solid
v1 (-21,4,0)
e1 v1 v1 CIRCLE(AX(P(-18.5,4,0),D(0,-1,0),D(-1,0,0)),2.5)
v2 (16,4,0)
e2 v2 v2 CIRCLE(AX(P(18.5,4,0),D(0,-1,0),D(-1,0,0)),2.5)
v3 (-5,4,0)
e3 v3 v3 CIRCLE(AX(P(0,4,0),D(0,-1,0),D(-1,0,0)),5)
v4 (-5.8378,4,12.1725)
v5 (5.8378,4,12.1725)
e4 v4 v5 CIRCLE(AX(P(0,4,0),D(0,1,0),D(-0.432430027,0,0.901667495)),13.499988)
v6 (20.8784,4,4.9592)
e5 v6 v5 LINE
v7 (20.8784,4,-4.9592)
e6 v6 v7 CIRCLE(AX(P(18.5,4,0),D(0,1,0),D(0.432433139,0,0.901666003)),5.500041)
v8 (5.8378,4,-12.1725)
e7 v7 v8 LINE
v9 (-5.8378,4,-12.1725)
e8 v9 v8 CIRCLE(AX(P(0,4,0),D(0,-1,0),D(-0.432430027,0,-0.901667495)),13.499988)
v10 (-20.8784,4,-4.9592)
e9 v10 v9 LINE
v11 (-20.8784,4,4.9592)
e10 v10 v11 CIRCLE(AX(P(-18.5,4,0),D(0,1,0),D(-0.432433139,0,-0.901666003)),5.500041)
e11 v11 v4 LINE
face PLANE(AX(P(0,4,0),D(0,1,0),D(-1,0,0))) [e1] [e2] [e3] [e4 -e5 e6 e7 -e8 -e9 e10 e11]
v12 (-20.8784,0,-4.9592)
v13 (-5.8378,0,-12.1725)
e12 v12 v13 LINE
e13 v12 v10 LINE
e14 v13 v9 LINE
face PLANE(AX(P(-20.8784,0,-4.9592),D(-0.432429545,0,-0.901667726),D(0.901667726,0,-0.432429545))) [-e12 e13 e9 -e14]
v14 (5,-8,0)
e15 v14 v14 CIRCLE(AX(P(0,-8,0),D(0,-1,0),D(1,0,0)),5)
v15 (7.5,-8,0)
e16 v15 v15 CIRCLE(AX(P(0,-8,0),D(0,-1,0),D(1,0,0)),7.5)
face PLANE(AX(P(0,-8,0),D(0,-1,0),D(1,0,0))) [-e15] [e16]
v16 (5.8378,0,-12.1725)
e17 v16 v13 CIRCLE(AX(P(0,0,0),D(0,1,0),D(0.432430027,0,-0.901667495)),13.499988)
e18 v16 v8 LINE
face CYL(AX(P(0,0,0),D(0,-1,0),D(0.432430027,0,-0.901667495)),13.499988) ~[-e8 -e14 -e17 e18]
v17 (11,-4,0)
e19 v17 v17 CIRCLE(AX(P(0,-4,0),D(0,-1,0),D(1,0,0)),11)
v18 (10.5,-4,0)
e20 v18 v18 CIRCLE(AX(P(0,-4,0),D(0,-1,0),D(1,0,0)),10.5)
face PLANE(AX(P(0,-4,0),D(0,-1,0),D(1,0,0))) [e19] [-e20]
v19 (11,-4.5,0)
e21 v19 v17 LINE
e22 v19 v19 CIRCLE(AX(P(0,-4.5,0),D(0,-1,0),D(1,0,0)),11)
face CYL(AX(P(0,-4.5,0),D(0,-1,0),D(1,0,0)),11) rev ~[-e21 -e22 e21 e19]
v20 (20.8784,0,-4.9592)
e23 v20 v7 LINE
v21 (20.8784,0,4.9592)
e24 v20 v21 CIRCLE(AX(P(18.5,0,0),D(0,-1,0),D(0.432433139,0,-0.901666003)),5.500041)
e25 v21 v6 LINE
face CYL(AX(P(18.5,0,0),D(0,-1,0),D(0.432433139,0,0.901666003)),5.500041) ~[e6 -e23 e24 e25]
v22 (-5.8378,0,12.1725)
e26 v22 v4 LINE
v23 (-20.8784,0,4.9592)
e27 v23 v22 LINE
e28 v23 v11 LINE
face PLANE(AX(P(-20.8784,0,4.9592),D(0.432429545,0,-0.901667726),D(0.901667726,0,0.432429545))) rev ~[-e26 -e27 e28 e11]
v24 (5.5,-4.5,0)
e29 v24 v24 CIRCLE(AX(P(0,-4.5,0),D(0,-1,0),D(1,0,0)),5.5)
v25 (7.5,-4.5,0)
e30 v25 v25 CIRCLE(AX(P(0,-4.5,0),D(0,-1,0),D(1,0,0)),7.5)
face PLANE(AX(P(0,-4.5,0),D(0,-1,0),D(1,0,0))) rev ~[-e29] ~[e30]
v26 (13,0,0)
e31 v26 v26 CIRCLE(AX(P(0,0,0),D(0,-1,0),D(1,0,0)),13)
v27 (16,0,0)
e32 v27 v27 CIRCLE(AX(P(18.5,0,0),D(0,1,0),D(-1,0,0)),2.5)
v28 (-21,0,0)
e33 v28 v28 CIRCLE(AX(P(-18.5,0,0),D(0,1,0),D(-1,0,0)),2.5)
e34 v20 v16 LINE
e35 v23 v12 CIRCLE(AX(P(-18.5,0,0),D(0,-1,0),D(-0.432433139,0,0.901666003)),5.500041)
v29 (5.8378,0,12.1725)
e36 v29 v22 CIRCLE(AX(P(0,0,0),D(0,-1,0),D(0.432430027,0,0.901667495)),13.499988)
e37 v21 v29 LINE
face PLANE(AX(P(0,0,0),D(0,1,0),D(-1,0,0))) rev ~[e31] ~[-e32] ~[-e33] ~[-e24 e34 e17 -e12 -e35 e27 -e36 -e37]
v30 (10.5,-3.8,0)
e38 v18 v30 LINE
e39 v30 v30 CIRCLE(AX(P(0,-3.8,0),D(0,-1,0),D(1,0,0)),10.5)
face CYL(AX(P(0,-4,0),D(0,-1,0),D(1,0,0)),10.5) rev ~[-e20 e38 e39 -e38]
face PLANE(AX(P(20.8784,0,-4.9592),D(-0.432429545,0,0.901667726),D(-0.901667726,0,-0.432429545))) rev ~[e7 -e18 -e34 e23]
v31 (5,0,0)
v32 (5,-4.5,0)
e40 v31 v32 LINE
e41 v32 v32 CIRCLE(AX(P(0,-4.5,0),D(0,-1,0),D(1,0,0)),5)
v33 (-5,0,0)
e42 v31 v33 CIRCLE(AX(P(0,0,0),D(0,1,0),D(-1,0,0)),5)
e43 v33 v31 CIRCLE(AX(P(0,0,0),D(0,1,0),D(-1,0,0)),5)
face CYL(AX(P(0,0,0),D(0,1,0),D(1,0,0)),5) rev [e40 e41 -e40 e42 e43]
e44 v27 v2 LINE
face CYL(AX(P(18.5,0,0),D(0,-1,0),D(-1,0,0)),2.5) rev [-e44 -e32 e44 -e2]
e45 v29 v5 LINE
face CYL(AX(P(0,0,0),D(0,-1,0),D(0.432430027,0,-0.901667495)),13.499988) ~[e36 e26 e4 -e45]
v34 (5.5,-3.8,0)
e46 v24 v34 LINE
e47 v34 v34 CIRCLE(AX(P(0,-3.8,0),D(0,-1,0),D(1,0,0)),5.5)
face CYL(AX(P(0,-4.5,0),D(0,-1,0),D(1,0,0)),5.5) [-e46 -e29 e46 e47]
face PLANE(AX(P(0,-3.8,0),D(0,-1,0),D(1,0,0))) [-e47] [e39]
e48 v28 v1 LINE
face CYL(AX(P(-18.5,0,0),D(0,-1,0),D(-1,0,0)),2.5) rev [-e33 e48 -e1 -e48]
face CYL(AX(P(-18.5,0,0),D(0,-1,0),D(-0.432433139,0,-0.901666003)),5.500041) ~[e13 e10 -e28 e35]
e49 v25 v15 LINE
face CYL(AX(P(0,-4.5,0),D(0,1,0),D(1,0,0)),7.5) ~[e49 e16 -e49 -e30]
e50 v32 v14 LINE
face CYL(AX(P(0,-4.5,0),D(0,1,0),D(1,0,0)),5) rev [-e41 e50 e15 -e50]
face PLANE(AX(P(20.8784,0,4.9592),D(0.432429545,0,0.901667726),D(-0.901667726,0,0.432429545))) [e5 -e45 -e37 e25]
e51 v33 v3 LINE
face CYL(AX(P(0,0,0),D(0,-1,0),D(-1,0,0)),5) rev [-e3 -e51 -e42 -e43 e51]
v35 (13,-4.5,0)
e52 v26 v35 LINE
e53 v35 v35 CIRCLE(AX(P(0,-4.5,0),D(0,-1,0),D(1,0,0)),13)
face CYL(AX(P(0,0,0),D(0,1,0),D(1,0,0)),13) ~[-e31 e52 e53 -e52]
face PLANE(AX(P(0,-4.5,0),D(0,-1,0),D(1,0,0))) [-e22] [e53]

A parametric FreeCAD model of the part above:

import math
import FreeCAD as App
import Part
import Sketcher
from FreeCAD import Vector
Q = App.Units.Quantity

doc = App.newDocument("Part")
body = doc.addObject("PartDesign::Body", "Body")

sketch1 = doc.addObject("Sketcher::SketchObject", "Sketch")
body.addObject(sketch1)
sketch1.AttachmentSupport = (doc.XZ_Plane, [""])
sketch1.MapMode = "FlatFace"
sketch1.addGeometry(Part.LineSegment(Vector(-5.8, -12.2, 0), Vector(-20.9, -5, 0)), False)
sketch1.addGeometry(Part.ArcOfCircle(Part.Circle(Vector(-18.5, 0, 0), Vector(0, 0, 1), 5.5), math.radians(116), math.radians(244)), False)
sketch1.addGeometry(Part.LineSegment(Vector(-20.9, 5, 0), Vector(-5.8, 12.2, 0)), False)
sketch1.addGeometry(Part.ArcOfCircle(Part.Circle(Vector(0, 0, 0), Vector(0, 0, 1), 13.5), math.radians(64), math.radians(116)), False)
sketch1.addGeometry(Part.LineSegment(Vector(5.8, 12.2, 0), Vector(20.9, 5, 0)), False)
sketch1.addGeometry(Part.ArcOfCircle(Part.Circle(Vector(18.5, 0, 0), Vector(0, 0, 1), 5.5), math.radians(-64), math.radians(64)), False)
sketch1.addGeometry(Part.LineSegment(Vector(20.9, -5, 0), Vector(5.8, -12.2, 0)), False)
sketch1.addGeometry(Part.ArcOfCircle(Part.Circle(Vector(0, 0, 0), Vector(0, 0, 1), 13.5), math.radians(-116), math.radians(-64)), False)
sketch1.addGeometry(Part.Circle(Vector(0, 0, 0), Vector(0, 0, 1), 5), False)
sketch1.addGeometry(Part.Circle(Vector(-18.5, 0, 0), Vector(0, 0, 1), 2.5), False)
sketch1.addGeometry(Part.Circle(Vector(18.5, 0, 0), Vector(0, 0, 1), 2.5), False)
sketch1.addConstraint(Sketcher.Constraint("Tangent", 0, 2, 1, 2))
sketch1.addConstraint(Sketcher.Constraint("Tangent", 1, 1, 2, 1))
sketch1.addConstraint(Sketcher.Constraint("Tangent", 2, 2, 3, 2))
sketch1.addConstraint(Sketcher.Constraint("Tangent", 3, 1, 4, 1))
sketch1.addConstraint(Sketcher.Constraint("Tangent", 4, 2, 5, 2))
sketch1.addConstraint(Sketcher.Constraint("Tangent", 5, 1, 6, 1))
sketch1.addConstraint(Sketcher.Constraint("Tangent", 6, 2, 7, 2))
sketch1.addConstraint(Sketcher.Constraint("Tangent", 7, 1, 0, 1))
sketch1.addConstraint(Sketcher.Constraint("Coincident", 3, 3, -1, 1))
sketch1.addConstraint(Sketcher.Constraint("Coincident", 7, 3, -1, 1))
sketch1.addConstraint(Sketcher.Constraint("Coincident", 8, 3, -1, 1))
sketch1.addConstraint(Sketcher.Constraint("Coincident", 9, 3, 1, 3))
sketch1.addConstraint(Sketcher.Constraint("Coincident", 10, 3, 5, 3))
sketch1.addConstraint(Sketcher.Constraint("Equal", 1, 5))
sketch1.addConstraint(Sketcher.Constraint("Equal", 3, 7))
sketch1.addConstraint(Sketcher.Constraint("Equal", 9, 10))
sketch1.addConstraint(Sketcher.Constraint("Symmetric", 1, 3, 5, 3, -1, 1))
sketch1.addConstraint(Sketcher.Constraint("PointOnObject", 1, 3, -1))
sketch1.addConstraint(Sketcher.Constraint("Diameter", 8, Q("10 mm")))
sketch1.addConstraint(Sketcher.Constraint("Diameter", 9, Q("5 mm")))
sketch1.addConstraint(Sketcher.Constraint("Radius", 3, Q("13.5 mm")))
sketch1.addConstraint(Sketcher.Constraint("DistanceX", 1, 3, 5, 3, Q("37 mm")))
sketch1.addConstraint(Sketcher.Constraint("Radius", 1, Q("5.5 mm")))
pad1 = doc.addObject("PartDesign::Pad", "Pad")
body.addObject(pad1)
pad1.Profile = sketch1
pad1.Length = 4
pad1.Reversed = True

sketch2 = doc.addObject("Sketcher::SketchObject", "Sketch001")
body.addObject(sketch2)
sketch2.AttachmentSupport = (doc.XZ_Plane, [""])
sketch2.MapMode = "FlatFace"
sketch2.addGeometry(Part.Circle(Vector(0, 0, 0), Vector(0, 0, 1), 13), False)
sketch2.addGeometry(Part.Circle(Vector(0, 0, 0), Vector(0, 0, 1), 5), False)
sketch2.addConstraint(Sketcher.Constraint("Coincident", 0, 3, -1, 1))
sketch2.addConstraint(Sketcher.Constraint("Coincident", 1, 3, -1, 1))
sketch2.addConstraint(Sketcher.Constraint("Diameter", 0, Q("26 mm")))
sketch2.addConstraint(Sketcher.Constraint("Diameter", 1, Q("10 mm")))
pad2 = doc.addObject("PartDesign::Pad", "Pad001")
body.addObject(pad2)
pad2.Profile = sketch2
pad2.Length = 4.5

sketch3 = doc.addObject("Sketcher::SketchObject", "Sketch002")
body.addObject(sketch3)
sketch3.AttachmentSupport = (doc.XZ_Plane, [""])
sketch3.MapMode = "FlatFace"
sketch3.AttachmentOffset = App.Placement(Vector(0, 0, 4.5), App.Rotation())
sketch3.addGeometry(Part.Circle(Vector(0, 0, 0), Vector(0, 0, 1), 8), False)
sketch3.addGeometry(Part.Circle(Vector(0, 0, 0), Vector(0, 0, 1), 5), False)
sketch3.addConstraint(Sketcher.Constraint("Coincident", 0, 3, -1, 1))
sketch3.addConstraint(Sketcher.Constraint("Coincident", 1, 3, -1, 1))
sketch3.addConstraint(Sketcher.Constraint("Diameter", 0, Q("15 mm")))
sketch3.addConstraint(Sketcher.Constraint("Diameter", 1, Q("10 mm")))
pad3 = doc.addObject("PartDesign::Pad", "Pad002")
body.addObject(pad3)
pad3.Profile = sketch3
pad3.Length = 3.5

sketch4 = doc.addObject("Sketcher::SketchObject", "Sketch003")
body.addObject(sketch4)
sketch4.AttachmentSupport = (doc.XZ_Plane, [""])
sketch4.MapMode = "FlatFace"
sketch4.AttachmentOffset = App.Placement(Vector(0, 0, 4.5), App.Rotation())
sketch4.addGeometry(Part.Circle(Vector(0, 0, 0), Vector(0, 0, 1), 11), False)
sketch4.addGeometry(Part.Circle(Vector(0, 0, 0), Vector(0, 0, 1), 6), False)
sketch4.addConstraint(Sketcher.Constraint("Coincident", 0, 3, -1, 1))
sketch4.addConstraint(Sketcher.Constraint("Coincident", 1, 3, -1, 1))
sketch4.addConstraint(Sketcher.Constraint("Diameter", 0, Q("22 mm")))
sketch4.addConstraint(Sketcher.Constraint("Diameter", 1, Q("11 mm")))
pocket1 = doc.addObject("PartDesign::Pocket", "Pocket")
body.addObject(pocket1)
pocket1.Profile = sketch4
pocket1.Length = 0.5

sketch5 = doc.addObject("Sketcher::SketchObject", "Sketch004")
body.addObject(sketch5)
sketch5.AttachmentSupport = (doc.XZ_Plane, [""])
sketch5.MapMode = "FlatFace"
sketch5.AttachmentOffset = App.Placement(Vector(0, 0, 4), App.Rotation())
sketch5.addGeometry(Part.Circle(Vector(0, 0, 0), Vector(0, 0, 1), 10), False)
sketch5.addGeometry(Part.Circle(Vector(0, 0, 0), Vector(0, 0, 1), 6), False)
sketch5.addConstraint(Sketcher.Constraint("Coincident", 0, 3, -1, 1))
sketch5.addConstraint(Sketcher.Constraint("Coincident", 1, 3, -1, 1))
sketch5.addConstraint(Sketcher.Constraint("Diameter", 0, Q("21 mm")))
sketch5.addConstraint(Sketcher.Constraint("Diameter", 1, Q("11 mm")))
pocket2 = doc.addObject("PartDesign::Pocket", "Pocket001")
body.addObject(pocket2)
pocket2.Profile = sketch5
pocket2.Length = 0.2

doc.recompute()
